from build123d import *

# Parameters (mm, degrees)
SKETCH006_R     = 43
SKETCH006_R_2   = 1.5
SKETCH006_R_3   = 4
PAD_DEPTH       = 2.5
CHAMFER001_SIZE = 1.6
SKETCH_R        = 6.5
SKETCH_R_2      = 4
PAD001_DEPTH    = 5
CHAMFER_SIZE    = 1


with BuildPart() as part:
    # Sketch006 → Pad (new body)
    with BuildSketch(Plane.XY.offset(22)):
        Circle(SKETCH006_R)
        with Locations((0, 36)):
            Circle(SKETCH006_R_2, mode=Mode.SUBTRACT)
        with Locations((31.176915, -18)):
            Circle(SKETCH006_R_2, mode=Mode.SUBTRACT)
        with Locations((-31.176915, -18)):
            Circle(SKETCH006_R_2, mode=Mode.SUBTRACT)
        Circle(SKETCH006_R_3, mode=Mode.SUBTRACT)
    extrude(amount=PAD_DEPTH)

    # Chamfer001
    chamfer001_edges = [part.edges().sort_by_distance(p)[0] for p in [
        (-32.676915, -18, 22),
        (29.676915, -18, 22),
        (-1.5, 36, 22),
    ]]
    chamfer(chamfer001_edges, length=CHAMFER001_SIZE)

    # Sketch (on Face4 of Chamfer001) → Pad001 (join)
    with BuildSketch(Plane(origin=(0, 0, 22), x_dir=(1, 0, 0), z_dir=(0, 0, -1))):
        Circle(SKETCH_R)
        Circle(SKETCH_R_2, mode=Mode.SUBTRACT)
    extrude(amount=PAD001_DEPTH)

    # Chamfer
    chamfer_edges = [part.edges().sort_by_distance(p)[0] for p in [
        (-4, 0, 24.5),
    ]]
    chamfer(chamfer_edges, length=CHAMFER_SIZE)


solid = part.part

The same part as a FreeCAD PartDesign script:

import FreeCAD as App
import Part
import Sketcher
from FreeCAD import Vector


def edges_at(feature, points):
    """Names of the edges that pass closest to the given points."""
    edges = feature.Shape.Edges
    near = lambda p: min(range(len(edges)), key=lambda i: edges[i].distToShape(Part.Vertex(*p))[0])
    return sorted({f"Edge{near(p) + 1}" for p in points})

doc = App.newDocument("Part")
body = doc.addObject("PartDesign::Body", "Body")

# Sketch on XY plane
sketch1 = body.newObject("Sketcher::SketchObject", "Sketch")
sketch1.AttachmentSupport = (doc.getObject("XY_Plane"), [""])
sketch1.MapMode = "FlatFace"
sketch1.AttachmentOffset = App.Placement(Vector(0, 0, 22), App.Rotation())
sketch1.addGeometry(Part.Circle(Vector(0, 0, 0), Vector(0, 0, 1), 43), False)
sketch1.addGeometry(Part.Circle(Vector(-31.2, -18, 0), Vector(0, 0, 1), 1.5), False)
sketch1.addGeometry(Part.Circle(Vector(31.2, -18, 0), Vector(0, 0, 1), 1.5), False)
sketch1.addGeometry(Part.Circle(Vector(0, 0, 0), Vector(0, 0, 1), 4), False)
sketch1.addGeometry(Part.Circle(Vector(0, 36, 0), Vector(0, 0, 1), 1.5), False)
sketch1.addConstraint(Sketcher.Constraint("Coincident", 0, 3, -1, 1))
sketch1.addConstraint(Sketcher.Constraint("Coincident", 3, 3, -1, 1))
sketch1.addConstraint(Sketcher.Constraint("Equal", 1, 2))
sketch1.addConstraint(Sketcher.Constraint("Equal", 2, 4))
sketch1.addConstraint(Sketcher.Constraint("Symmetric", 1, 3, 2, 3, -2))
sketch1.addConstraint(Sketcher.Constraint("PointOnObject", 4, 3, -2))
sketch1.addConstraint(Sketcher.Constraint("Diameter", 0, 86.0))
sketch1.addConstraint(Sketcher.Constraint("Diameter", 1, 3.0))
sketch1.addConstraint(Sketcher.Constraint("Diameter", 3, 8.0))
sketch1.addConstraint(Sketcher.Constraint("DistanceY", 1, 3, -1, 1, 18.0))
sketch1.addConstraint(Sketcher.Constraint("DistanceY", -1, 1, 4, 3, 36.0))
sketch1.addConstraint(Sketcher.Constraint("DistanceX", 1, 3, 2, 3, 62.35383))
pad1 = body.newObject("PartDesign::Pad", "Pad")
pad1.Profile = sketch1
pad1.Length = 2.5
doc.recompute()

chamfer = body.newObject("PartDesign::Chamfer", "Chamfer")
chamfer.Base = (pad1, edges_at(pad1, [(-32.677, -18, 22), (29.677, -18, 22), (-1.5, 36, 22)]))
chamfer.Size = 1.6

# Sketch on XY plane
sketch2 = body.newObject("Sketcher::SketchObject", "Sketch001")
sketch2.AttachmentSupport = (doc.getObject("XY_Plane"), [""])
sketch2.MapMode = "FlatFace"
sketch2.AttachmentOffset = App.Placement(Vector(0, 0, 22), App.Rotation())
sketch2.addGeometry(Part.Circle(Vector(0, 0, 0), Vector(0, 0, 1), 6.5), False)
sketch2.addGeometry(Part.Circle(Vector(0, 0, 0), Vector(0, 0, 1), 4), False)
sketch2.addConstraint(Sketcher.Constraint("Coincident", 0, 3, -1, 1))
sketch2.addConstraint(Sketcher.Constraint("Coincident", 1, 3, -1, 1))
sketch2.addConstraint(Sketcher.Constraint("Diameter", 0, 13.0))
sketch2.addConstraint(Sketcher.Constraint("Diameter", 1, 8.0))
pad2 = body.newObject("PartDesign::Pad", "Pad001")
pad2.Profile = sketch2
pad2.Length = 5
pad2.Reversed = True
doc.recompute()

chamfer2 = body.newObject("PartDesign::Chamfer", "Chamfer001")
chamfer2.Base = (pad2, edges_at(pad2, [(-4, 0, 24.5)]))
chamfer2.Size = 1

doc.recompute()
